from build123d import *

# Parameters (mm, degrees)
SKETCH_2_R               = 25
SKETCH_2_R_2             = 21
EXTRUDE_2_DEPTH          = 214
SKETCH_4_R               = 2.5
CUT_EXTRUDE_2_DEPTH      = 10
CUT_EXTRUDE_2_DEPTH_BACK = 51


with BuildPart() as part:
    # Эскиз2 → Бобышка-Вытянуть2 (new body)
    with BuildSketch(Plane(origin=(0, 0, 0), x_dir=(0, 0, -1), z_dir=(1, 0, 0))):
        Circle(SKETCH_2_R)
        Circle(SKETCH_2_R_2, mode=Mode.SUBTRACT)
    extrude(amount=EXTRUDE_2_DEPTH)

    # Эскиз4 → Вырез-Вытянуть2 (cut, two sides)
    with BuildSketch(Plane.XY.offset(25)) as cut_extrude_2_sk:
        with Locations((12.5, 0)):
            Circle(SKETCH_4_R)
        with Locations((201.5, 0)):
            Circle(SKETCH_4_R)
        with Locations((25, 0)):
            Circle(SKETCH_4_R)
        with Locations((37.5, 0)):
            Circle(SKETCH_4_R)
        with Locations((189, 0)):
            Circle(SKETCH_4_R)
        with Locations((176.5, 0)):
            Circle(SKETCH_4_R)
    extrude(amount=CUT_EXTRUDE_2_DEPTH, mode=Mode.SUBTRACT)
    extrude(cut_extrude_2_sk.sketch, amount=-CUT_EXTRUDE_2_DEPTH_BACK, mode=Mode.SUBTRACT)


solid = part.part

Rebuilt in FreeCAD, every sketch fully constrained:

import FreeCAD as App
import Part
import Sketcher
from FreeCAD import Vector
Q = App.Units.Quantity

doc = App.newDocument("Part")
params = doc.addObject("Spreadsheet::Sheet", "Params")
for row, (alias, value) in enumerate([
    ("sketch1_diameter", "50 mm"),
    ("sketch1_diameter2", "42 mm"),
    ("pad1_length", "214 mm"),
    ("sketch2_diameter", "5 mm"),
], start=1):
    params.set(f"A{row}", alias)
    params.set(f"B{row}", "=" + value)
    params.setAlias(f"B{row}", alias)

body = doc.addObject("PartDesign::Body", "Body")

# Sketch on YZ plane
sketch1 = body.newObject("Sketcher::SketchObject", "Sketch")
sketch1.AttachmentSupport = (doc.getObject("YZ_Plane"), [""])
sketch1.MapMode = "FlatFace"
sketch1.addGeometry(Part.Circle(Vector(0, 0, 0), Vector(0, 0, 1), 25), False)
sketch1.addGeometry(Part.Circle(Vector(0, 0, 0), Vector(0, 0, 1), 21), False)
sketch1.addConstraint(Sketcher.Constraint("Coincident", 0, 3, -1, 1))
sketch1.addConstraint(Sketcher.Constraint("Coincident", 1, 3, -1, 1))
sketch1.addConstraint(Sketcher.Constraint("Diameter", 0, Q("50 mm")))
sketch1.addConstraint(Sketcher.Constraint("Diameter", 1, Q("42 mm")))
sketch1.setExpression("Constraints[2]", "Params.sketch1_diameter")
sketch1.setExpression("Constraints[3]", "Params.sketch1_diameter2")
pad1 = body.newObject("PartDesign::Pad", "Pad")
pad1.Profile = sketch1
pad1.setExpression("Length", "Params.pad1_length")

# Sketch on XY plane
sketch2 = body.newObject("Sketcher::SketchObject", "Sketch001")
sketch2.AttachmentSupport = (doc.getObject("XY_Plane"), [""])
sketch2.MapMode = "FlatFace"
sketch2.AttachmentOffset = App.Placement(Vector(0, 0, 25), App.Rotation())
sketch2.addGeometry(Part.Circle(Vector(12.5, 0, 0), Vector(0, 0, 1), 2.5), False)
sketch2.addGeometry(Part.Circle(Vector(201.5, 0, 0), Vector(0, 0, 1), 2.5), False)
sketch2.addGeometry(Part.Circle(Vector(25, 0, 0), Vector(0, 0, 1), 2.5), False)
sketch2.addGeometry(Part.Circle(Vector(37.5, 0, 0), Vector(0, 0, 1), 2.5), False)
sketch2.addGeometry(Part.Circle(Vector(189, 0, 0), Vector(0, 0, 1), 2.5), False)
sketch2.addGeometry(Part.Circle(Vector(176.5, 0, 0), Vector(0, 0, 1), 2.5), False)
sketch2.addConstraint(Sketcher.Constraint("Equal", 0, 1))
sketch2.addConstraint(Sketcher.Constraint("Equal", 1, 2))
sketch2.addConstraint(Sketcher.Constraint("Equal", 2, 3))
sketch2.addConstraint(Sketcher.Constraint("Equal", 3, 4))
sketch2.addConstraint(Sketcher.Constraint("Equal", 4, 5))
sketch2.addConstraint(Sketcher.Constraint("PointOnObject", 0, 3, -1))
sketch2.addConstraint(Sketcher.Constraint("PointOnObject", 1, 3, -1))
sketch2.addConstraint(Sketcher.Constraint("PointOnObject", 2, 3, -1))
sketch2.addConstraint(Sketcher.Constraint("PointOnObject", 3, 3, -1))
sketch2.addConstraint(Sketcher.Constraint("PointOnObject", 4, 3, -1))
sketch2.addConstraint(Sketcher.Constraint("PointOnObject", 5, 3, -1))
sketch2.addConstraint(Sketcher.Constraint("Diameter", 0, Q("5 mm")))
sketch2.addConstraint(Sketcher.Constraint("DistanceX", -1, 1, 2, 3, Q("25 mm")))
sketch2.addConstraint(Sketcher.Constraint("DistanceX", -1, 1, 4, 3, Q("189 mm")))
sketch2.addConstraint(Sketcher.Constraint("DistanceX", 0, 3, 1, 3, Q("189 mm")))
sketch2.addConstraint(Sketcher.Constraint("DistanceX", 0, 3, 3, 3, Q("25 mm")))
sketch2.addConstraint(Sketcher.Constraint("DistanceX", 5, 3, 1, 3, Q("25 mm")))
sketch2.addConstraint(Sketcher.Constraint("DistanceX", -1, 1, 0, 3, Q("12.5 mm")))
sketch2.setExpression("Constraints[11]", "Params.sketch2_diameter")
pocket1 = body.newObject("PartDesign::Pocket", "Pocket")
pocket1.Profile = sketch2
pocket1.Type = "ThroughAll"
pocket1.Midplane = True

doc.recompute()
